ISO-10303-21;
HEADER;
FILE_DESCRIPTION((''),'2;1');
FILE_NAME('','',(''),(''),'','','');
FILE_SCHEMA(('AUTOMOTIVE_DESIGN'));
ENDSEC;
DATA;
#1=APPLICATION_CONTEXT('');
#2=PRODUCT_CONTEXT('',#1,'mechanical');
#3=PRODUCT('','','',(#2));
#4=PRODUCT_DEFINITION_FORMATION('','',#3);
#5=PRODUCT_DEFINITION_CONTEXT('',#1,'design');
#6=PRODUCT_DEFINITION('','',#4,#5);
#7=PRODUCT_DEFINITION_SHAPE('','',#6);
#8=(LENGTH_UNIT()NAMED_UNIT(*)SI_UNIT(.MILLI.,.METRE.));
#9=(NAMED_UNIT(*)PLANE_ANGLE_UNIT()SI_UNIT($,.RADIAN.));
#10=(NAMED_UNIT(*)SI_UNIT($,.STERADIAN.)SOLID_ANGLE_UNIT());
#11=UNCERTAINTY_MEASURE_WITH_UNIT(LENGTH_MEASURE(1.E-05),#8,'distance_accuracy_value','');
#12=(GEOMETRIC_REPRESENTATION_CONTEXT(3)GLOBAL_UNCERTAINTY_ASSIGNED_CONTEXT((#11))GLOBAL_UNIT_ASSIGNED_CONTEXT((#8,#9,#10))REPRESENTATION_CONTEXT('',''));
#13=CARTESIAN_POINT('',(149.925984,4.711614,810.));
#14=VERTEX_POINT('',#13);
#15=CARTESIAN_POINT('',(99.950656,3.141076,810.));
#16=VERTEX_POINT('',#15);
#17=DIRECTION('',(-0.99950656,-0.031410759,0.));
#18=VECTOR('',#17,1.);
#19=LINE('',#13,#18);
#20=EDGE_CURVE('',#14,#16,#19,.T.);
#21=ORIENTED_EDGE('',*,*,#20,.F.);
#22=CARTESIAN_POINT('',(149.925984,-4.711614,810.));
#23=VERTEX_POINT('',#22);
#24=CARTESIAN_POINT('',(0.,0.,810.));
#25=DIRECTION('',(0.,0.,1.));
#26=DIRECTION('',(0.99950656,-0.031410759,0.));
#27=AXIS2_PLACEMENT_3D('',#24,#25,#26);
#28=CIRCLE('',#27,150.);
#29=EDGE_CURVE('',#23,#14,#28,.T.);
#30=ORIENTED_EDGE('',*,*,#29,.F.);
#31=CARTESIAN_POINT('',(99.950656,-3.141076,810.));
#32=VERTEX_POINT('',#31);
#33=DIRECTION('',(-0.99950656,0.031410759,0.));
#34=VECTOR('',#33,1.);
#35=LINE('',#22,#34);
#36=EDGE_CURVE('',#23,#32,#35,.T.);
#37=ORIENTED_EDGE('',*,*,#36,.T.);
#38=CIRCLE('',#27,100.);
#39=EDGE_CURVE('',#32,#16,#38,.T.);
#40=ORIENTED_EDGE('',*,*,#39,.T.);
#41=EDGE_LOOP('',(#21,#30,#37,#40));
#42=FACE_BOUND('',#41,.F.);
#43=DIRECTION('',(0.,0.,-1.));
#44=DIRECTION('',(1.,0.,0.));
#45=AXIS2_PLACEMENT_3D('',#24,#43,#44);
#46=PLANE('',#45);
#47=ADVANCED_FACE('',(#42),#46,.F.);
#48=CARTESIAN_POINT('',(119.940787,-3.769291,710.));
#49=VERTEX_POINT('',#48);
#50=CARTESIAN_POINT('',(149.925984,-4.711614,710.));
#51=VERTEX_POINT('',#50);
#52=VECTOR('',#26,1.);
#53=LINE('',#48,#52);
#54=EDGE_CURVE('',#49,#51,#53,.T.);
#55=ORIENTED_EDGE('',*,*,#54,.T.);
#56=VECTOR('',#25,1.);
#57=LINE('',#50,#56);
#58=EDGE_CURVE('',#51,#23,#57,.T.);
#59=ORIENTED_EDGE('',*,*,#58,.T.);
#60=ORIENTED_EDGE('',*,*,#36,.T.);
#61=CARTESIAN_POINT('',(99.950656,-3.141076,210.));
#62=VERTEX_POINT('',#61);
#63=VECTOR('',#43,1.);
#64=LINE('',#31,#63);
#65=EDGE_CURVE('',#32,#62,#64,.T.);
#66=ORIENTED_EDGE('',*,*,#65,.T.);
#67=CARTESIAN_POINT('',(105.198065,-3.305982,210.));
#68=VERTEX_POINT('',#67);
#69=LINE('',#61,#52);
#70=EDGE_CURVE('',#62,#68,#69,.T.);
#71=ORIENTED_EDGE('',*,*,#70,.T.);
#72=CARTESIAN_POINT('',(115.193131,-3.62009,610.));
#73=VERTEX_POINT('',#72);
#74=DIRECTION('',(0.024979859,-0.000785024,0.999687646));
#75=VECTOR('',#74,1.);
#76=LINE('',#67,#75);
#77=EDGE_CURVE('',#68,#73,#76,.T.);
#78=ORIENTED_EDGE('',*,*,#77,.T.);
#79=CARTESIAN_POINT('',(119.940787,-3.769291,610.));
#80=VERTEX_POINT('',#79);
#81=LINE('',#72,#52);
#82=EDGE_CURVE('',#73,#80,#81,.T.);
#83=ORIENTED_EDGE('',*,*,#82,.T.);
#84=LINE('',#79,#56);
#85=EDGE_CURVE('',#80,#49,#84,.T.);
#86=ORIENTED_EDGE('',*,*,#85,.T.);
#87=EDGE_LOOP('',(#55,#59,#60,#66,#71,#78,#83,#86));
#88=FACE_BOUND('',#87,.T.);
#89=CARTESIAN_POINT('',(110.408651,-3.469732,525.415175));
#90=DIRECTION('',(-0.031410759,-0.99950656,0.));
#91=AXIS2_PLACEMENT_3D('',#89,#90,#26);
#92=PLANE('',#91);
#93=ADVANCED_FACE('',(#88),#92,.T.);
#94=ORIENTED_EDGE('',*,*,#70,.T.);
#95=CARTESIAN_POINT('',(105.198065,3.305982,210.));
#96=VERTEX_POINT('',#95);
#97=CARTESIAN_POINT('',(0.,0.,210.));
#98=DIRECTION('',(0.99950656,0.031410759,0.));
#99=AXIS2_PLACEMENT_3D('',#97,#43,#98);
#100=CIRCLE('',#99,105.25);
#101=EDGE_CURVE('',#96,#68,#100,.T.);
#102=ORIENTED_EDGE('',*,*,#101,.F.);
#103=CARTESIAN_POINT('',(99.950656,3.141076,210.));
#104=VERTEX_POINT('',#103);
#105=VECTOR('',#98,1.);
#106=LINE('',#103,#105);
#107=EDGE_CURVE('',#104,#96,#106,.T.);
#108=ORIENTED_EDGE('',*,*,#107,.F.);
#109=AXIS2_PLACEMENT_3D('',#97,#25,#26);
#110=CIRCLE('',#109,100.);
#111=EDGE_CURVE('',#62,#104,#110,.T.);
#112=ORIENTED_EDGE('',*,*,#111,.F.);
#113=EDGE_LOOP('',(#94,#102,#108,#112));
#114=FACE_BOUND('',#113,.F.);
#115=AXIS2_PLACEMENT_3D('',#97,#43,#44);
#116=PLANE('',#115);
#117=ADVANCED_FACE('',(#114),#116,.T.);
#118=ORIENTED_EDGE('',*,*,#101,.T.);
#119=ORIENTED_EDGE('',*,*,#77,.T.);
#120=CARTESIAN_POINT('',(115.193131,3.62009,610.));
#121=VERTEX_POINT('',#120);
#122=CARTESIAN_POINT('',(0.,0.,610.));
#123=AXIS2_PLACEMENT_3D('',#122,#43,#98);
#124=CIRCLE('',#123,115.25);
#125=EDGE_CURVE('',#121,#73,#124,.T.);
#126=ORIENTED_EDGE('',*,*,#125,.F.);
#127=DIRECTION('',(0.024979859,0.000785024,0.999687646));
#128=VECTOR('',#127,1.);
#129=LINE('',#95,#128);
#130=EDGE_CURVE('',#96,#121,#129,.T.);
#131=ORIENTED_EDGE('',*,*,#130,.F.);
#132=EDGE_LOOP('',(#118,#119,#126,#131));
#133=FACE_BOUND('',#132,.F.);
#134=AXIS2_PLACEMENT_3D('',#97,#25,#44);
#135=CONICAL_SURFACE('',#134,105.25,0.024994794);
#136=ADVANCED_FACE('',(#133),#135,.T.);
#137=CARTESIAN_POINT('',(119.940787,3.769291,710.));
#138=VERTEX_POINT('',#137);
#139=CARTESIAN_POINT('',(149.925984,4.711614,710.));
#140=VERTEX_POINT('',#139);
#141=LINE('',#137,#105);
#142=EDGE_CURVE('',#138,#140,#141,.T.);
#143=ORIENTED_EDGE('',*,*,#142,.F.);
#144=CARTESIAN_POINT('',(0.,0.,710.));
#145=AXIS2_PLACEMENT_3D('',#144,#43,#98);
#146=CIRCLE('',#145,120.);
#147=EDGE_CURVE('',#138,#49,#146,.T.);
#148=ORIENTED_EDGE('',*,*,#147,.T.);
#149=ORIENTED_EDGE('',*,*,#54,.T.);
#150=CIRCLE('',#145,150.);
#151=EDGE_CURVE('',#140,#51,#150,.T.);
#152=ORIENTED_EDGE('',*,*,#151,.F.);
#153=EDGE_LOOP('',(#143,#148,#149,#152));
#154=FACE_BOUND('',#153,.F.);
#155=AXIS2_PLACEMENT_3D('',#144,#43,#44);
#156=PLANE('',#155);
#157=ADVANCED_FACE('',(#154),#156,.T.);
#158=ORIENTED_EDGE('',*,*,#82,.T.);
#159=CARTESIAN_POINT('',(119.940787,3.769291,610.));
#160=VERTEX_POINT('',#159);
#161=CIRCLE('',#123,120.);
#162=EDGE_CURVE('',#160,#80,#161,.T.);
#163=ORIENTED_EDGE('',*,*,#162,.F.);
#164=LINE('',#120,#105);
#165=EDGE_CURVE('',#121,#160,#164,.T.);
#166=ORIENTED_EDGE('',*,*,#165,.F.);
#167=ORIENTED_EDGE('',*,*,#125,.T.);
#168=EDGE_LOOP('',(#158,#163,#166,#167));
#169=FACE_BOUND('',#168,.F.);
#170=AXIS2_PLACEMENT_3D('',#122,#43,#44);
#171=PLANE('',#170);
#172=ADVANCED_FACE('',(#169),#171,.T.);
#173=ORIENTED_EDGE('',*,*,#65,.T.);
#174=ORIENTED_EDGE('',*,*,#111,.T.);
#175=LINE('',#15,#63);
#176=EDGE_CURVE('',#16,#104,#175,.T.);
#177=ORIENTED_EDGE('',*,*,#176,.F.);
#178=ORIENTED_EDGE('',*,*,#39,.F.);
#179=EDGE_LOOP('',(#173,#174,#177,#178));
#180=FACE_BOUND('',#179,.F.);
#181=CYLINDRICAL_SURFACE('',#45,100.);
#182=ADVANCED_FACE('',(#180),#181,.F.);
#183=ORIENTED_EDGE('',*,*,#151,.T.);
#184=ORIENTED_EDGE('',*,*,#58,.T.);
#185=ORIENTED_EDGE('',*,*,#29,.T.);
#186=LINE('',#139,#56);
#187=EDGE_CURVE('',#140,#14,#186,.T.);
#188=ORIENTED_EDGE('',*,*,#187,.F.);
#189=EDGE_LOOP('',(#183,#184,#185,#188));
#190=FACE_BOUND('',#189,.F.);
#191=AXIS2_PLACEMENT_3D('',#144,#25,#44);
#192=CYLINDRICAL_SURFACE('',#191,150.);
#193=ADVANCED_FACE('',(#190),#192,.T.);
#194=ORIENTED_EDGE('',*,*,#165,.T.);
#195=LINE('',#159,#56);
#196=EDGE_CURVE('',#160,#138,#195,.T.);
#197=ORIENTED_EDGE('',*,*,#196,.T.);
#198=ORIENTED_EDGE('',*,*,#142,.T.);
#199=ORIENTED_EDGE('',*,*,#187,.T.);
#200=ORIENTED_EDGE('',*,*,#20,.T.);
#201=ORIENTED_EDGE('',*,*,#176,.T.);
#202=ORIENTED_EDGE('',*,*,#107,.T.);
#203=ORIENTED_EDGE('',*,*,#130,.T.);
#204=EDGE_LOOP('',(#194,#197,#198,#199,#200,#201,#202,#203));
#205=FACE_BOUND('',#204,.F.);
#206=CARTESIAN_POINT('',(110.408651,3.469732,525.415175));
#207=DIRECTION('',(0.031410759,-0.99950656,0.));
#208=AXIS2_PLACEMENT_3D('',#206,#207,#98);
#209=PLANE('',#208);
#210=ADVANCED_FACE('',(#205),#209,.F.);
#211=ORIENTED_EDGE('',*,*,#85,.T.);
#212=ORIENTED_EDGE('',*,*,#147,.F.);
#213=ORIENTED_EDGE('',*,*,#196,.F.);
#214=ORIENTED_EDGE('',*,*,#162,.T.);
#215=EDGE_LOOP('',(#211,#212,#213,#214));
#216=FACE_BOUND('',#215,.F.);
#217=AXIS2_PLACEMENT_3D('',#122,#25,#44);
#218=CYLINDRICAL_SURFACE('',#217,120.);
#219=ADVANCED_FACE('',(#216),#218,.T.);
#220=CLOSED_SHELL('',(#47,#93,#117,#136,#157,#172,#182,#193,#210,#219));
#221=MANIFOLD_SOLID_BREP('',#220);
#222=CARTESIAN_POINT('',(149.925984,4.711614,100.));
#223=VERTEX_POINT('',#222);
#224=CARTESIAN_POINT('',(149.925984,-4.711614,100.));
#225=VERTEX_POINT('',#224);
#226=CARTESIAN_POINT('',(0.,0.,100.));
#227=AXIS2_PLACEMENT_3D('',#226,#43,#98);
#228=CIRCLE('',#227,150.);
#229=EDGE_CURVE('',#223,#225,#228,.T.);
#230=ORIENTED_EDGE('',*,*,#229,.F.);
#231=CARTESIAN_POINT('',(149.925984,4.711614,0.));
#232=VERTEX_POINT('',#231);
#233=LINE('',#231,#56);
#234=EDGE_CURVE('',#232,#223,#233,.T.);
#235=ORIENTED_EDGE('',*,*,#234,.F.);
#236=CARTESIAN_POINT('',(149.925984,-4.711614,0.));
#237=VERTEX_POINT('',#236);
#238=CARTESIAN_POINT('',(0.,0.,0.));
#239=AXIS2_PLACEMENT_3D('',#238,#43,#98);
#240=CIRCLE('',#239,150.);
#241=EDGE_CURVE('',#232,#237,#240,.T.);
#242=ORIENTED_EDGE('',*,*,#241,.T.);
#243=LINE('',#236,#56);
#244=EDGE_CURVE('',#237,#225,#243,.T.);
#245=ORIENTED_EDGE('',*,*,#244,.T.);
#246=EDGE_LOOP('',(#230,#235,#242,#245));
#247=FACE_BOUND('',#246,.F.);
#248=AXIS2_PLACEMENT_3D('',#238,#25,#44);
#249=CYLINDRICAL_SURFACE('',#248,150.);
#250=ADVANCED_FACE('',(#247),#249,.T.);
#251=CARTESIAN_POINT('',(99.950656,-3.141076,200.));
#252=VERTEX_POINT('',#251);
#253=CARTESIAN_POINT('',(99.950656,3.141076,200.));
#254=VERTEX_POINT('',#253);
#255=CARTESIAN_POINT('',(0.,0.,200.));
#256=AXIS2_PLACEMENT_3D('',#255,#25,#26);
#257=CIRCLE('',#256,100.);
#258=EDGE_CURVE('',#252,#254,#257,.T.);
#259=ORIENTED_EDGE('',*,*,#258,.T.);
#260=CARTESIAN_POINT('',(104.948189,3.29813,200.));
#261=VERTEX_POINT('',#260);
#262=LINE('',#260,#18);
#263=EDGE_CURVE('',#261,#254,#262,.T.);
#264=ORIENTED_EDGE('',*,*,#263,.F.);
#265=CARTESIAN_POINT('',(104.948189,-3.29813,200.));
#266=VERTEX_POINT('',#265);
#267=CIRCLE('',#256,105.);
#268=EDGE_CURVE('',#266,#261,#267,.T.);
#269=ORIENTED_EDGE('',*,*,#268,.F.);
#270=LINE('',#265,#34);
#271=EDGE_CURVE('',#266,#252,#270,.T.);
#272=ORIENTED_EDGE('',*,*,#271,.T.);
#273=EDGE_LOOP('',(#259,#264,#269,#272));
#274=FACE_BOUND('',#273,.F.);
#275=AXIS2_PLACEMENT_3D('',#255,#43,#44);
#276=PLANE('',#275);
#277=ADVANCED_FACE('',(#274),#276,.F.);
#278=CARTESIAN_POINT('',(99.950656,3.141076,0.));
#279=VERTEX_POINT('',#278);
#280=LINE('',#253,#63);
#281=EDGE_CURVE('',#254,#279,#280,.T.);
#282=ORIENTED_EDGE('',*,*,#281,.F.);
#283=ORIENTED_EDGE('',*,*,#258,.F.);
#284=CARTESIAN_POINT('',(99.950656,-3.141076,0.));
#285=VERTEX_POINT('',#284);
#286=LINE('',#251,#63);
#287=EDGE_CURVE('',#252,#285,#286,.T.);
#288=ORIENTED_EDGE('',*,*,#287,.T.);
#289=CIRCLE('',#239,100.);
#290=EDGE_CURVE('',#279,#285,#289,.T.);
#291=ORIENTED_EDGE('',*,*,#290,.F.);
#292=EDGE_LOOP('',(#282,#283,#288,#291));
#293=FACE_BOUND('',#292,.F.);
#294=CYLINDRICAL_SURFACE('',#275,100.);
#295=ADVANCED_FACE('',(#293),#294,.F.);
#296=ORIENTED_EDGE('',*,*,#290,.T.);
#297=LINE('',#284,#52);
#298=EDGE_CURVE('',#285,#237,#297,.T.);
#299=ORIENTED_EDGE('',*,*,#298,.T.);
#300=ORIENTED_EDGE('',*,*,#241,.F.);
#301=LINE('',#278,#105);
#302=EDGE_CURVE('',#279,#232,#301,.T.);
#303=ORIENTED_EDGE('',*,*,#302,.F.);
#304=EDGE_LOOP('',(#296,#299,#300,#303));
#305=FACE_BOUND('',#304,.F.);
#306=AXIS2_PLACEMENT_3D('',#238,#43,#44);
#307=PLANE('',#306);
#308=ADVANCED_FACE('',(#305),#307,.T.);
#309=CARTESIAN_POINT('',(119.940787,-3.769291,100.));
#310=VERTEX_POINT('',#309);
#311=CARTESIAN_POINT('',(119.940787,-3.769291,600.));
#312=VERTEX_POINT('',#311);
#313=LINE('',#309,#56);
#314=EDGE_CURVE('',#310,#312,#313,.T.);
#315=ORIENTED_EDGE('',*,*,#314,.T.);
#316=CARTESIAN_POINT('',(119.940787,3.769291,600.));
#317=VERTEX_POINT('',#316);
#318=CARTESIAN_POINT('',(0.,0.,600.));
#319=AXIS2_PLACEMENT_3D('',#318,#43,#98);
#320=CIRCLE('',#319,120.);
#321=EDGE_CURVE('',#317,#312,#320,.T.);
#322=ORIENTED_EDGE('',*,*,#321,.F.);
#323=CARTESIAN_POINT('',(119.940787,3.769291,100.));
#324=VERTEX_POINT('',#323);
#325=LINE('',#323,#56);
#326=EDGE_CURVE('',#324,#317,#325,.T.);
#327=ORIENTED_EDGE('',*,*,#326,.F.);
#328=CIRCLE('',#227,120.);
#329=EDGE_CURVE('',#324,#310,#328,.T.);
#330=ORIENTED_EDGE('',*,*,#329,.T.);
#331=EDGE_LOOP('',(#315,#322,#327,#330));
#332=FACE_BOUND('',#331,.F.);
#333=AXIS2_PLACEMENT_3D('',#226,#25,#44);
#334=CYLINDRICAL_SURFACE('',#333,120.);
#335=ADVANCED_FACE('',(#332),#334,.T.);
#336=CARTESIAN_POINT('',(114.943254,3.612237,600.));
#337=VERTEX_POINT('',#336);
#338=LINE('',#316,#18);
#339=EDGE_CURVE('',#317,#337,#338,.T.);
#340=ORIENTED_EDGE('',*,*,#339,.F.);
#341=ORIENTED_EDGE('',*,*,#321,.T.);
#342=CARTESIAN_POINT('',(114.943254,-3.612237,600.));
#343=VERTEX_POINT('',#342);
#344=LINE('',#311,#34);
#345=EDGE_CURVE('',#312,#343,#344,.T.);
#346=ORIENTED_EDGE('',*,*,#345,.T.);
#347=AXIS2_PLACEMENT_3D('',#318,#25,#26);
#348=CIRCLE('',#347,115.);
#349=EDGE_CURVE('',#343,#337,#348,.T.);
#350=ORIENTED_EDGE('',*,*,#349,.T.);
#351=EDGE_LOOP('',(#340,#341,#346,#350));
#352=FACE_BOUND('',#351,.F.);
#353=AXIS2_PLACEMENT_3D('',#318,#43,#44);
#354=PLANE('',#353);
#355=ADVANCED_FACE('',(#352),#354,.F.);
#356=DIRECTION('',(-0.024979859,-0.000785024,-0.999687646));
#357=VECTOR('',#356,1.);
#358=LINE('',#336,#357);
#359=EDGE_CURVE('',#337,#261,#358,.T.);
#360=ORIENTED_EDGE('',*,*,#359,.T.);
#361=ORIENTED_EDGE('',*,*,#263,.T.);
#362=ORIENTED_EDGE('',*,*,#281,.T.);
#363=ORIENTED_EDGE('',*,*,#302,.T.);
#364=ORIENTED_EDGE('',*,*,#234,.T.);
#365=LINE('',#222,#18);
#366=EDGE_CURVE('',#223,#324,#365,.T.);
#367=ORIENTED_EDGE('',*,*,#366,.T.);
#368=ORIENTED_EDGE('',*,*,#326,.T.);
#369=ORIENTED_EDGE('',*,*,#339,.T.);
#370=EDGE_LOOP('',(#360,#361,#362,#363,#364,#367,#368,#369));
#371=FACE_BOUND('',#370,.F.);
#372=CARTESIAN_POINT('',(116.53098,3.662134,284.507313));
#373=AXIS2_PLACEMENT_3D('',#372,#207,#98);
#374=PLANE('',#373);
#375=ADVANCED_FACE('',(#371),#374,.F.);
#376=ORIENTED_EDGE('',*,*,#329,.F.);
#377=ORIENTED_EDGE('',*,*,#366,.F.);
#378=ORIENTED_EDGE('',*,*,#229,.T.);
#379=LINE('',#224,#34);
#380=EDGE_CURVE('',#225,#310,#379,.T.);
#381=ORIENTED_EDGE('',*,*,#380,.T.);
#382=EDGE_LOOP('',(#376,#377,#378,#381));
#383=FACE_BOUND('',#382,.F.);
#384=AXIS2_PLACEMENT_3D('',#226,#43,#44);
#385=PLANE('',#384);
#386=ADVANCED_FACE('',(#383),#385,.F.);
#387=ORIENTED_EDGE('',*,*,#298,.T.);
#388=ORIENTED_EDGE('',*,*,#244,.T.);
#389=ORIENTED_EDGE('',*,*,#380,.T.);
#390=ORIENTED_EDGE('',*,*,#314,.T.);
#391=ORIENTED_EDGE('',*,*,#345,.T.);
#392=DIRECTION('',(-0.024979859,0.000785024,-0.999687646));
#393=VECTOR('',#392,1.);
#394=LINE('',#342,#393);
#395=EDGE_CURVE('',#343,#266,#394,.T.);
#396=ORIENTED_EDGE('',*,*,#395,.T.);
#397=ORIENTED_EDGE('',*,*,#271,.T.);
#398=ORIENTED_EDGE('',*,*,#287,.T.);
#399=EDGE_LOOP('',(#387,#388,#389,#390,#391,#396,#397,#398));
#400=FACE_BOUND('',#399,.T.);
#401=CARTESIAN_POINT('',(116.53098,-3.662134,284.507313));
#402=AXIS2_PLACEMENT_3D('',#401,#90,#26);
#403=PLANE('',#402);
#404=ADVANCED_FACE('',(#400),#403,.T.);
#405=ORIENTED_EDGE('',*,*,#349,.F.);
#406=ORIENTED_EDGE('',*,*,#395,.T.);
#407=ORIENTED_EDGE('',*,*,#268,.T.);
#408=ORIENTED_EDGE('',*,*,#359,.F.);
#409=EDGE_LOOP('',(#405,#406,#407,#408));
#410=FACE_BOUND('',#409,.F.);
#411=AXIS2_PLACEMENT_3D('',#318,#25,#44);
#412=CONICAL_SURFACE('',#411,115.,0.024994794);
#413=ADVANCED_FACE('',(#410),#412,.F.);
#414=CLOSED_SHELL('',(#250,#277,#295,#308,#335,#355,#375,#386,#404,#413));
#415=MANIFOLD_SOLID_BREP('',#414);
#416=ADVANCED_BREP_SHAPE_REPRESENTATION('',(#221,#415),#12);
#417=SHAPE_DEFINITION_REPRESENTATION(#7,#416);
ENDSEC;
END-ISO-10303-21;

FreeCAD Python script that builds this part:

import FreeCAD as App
import Part
import Sketcher
from FreeCAD import Vector


def add_polygon(sketch, points):
    """Adds a closed chain of lines whose ends are joined by coincident constraints."""
    first, n = sketch.GeometryCount, len(points)
    for a, b in zip(points, points[1:] + points[:1]):
        sketch.addGeometry(Part.LineSegment(App.Vector(*a, 0), App.Vector(*b, 0)), False)
    for i in range(n):
        sketch.addConstraint(Sketcher.Constraint("Coincident", first + i, 2, first + (i + 1) % n, 1))

doc = App.newDocument("Part")
body = doc.addObject("PartDesign::Body", "Body")

# Sketch on XZ plane
sketch1 = body.newObject("Sketcher::SketchObject", "Sketch")
sketch1.AttachmentSupport = (doc.getObject("XZ_Plane"), [""])
sketch1.MapMode = "FlatFace"
add_polygon(sketch1, [(100, 210), (105.2, 210), (115.2, 610), (120, 610), (120, 710), (150, 710), (150, 810), (100, 810)])  # lines 0-7
sketch1.addConstraint([
    Sketcher.Constraint("Horizontal", 0),
    Sketcher.Constraint("Horizontal", 2),
    Sketcher.Constraint("Vertical", 3),
    Sketcher.Constraint("Horizontal", 4),
    Sketcher.Constraint("Vertical", 5),
    Sketcher.Constraint("Horizontal", 6),
    Sketcher.Constraint("Vertical", 7),
    Sketcher.Constraint("Equal", 3, 5),
    Sketcher.Constraint("DistanceX", 4, 1, 4, 2, 30.0),
    Sketcher.Constraint("DistanceX", 6, 2, 6, 1, 50.0),
    Sketcher.Constraint("DistanceY", 3, 1, 3, 2, 100.0),
    Sketcher.Constraint("DistanceY", 7, 2, 7, 1, 600.0),
    Sketcher.Constraint("DistanceY", -1, 1, 0, 2, 210.0),
    Sketcher.Constraint("DistanceX", -1, 1, 2, 2, 120.0),
    Sketcher.Constraint("DistanceX", 0, 2, 1, 2, 10.0),
    Sketcher.Constraint("DistanceX", 0, 1, 0, 2, 5.25),
])
revolution = body.newObject("PartDesign::Revolution", "Revolution")
revolution.Profile = sketch1
revolution.ReferenceAxis = (sketch1, ["V_Axis"])
revolution.Angle = 1.8

# Sketch on XZ plane
sketch2 = body.newObject("Sketcher::SketchObject", "Sketch001")
sketch2.AttachmentSupport = (doc.getObject("XZ_Plane"), [""])
sketch2.MapMode = "FlatFace"
add_polygon(sketch2, [(100, 210), (105.2, 210), (115.2, 610), (120, 610), (120, 710), (150, 710), (150, 810), (100, 810)])  # lines 0-7
sketch2.addConstraint([
    Sketcher.Constraint("Horizontal", 0),
    Sketcher.Constraint("Horizontal", 2),
    Sketcher.Constraint("Vertical", 3),
    Sketcher.Constraint("Horizontal", 4),
    Sketcher.Constraint("Vertical", 5),
    Sketcher.Constraint("Horizontal", 6),
    Sketcher.Constraint("Vertical", 7),
    Sketcher.Constraint("Equal", 3, 5),
    Sketcher.Constraint("DistanceX", 4, 1, 4, 2, 30.0),
    Sketcher.Constraint("DistanceX", 6, 2, 6, 1, 50.0),
    Sketcher.Constraint("DistanceY", 3, 1, 3, 2, 100.0),
    Sketcher.Constraint("DistanceY", 7, 2, 7, 1, 600.0),
    Sketcher.Constraint("DistanceY", -1, 1, 0, 2, 210.0),
    Sketcher.Constraint("DistanceX", -1, 1, 2, 2, 120.0),
    Sketcher.Constraint("DistanceX", 0, 2, 1, 2, 10.0),
    Sketcher.Constraint("DistanceX", 0, 1, 0, 2, 5.25),
])
revolution2 = body.newObject("PartDesign::Revolution", "Revolution001")
revolution2.Profile = sketch2
revolution2.ReferenceAxis = (sketch2, ["V_Axis"])
revolution2.Angle = 1.8
revolution2.Reversed = True
body2 = doc.addObject("PartDesign::Body", "Body001")

# Sketch on XZ plane
sketch3 = body2.newObject("Sketcher::SketchObject", "Sketch002")
sketch3.AttachmentSupport = (doc.getObject("XZ_Plane001"), [""])
sketch3.MapMode = "FlatFace"
add_polygon(sketch3, [(100, 200), (100, 0), (150, 0), (150, 100), (120, 100), (120, 600), (115, 600), (105, 200)])  # lines 0-7
sketch3.addConstraint([
    Sketcher.Constraint("Vertical", 0),
    Sketcher.Constraint("Horizontal", 1),
    Sketcher.Constraint("Vertical", 2),
    Sketcher.Constraint("Horizontal", 3),
    Sketcher.Constraint("Vertical", 4),
    Sketcher.Constraint("Horizontal", 5),
    Sketcher.Constraint("Horizontal", 7),
    Sketcher.Constraint("PointOnObject", 0, 2, -1),
    Sketcher.Constraint("Equal", 5, 7),
    Sketcher.Constraint("DistanceX", 1, 1, 1, 2, 50.0),
    Sketcher.Constraint("DistanceX", 3, 2, 3, 1, 30.0),
    Sketcher.Constraint("DistanceX", 5, 2, 5, 1, 5.0),
    Sketcher.Constraint("DistanceY", 0, 2, 0, 1, 200.0),
    Sketcher.Constraint("DistanceY", 2, 1, 2, 2, 100.0),
    Sketcher.Constraint("DistanceY", 4, 1, 4, 2, 500.0),
    Sketcher.Constraint("DistanceX", -1, 1, 0, 2, 100.0),
])
revolution3 = body2.newObject("PartDesign::Revolution", "Revolution002")
revolution3.Profile = sketch3
revolution3.ReferenceAxis = (sketch3, ["V_Axis"])
revolution3.Angle = 1.8

# Sketch on XZ plane
sketch4 = body2.newObject("Sketcher::SketchObject", "Sketch003")
sketch4.AttachmentSupport = (doc.getObject("XZ_Plane001"), [""])
sketch4.MapMode = "FlatFace"
add_polygon(sketch4, [(100, 200), (100, 0), (150, 0), (150, 100), (120, 100), (120, 600), (115, 600), (105, 200)])  # lines 0-7
sketch4.addConstraint([
    Sketcher.Constraint("Vertical", 0),
    Sketcher.Constraint("Horizontal", 1),
    Sketcher.Constraint("Vertical", 2),
    Sketcher.Constraint("Horizontal", 3),
    Sketcher.Constraint("Vertical", 4),
    Sketcher.Constraint("Horizontal", 5),
    Sketcher.Constraint("Horizontal", 7),
    Sketcher.Constraint("PointOnObject", 0, 2, -1),
    Sketcher.Constraint("Equal", 5, 7),
    Sketcher.Constraint("DistanceX", 1, 1, 1, 2, 50.0),
    Sketcher.Constraint("DistanceX", 3, 2, 3, 1, 30.0),
    Sketcher.Constraint("DistanceX", 5, 2, 5, 1, 5.0),
    Sketcher.Constraint("DistanceY", 0, 2, 0, 1, 200.0),
    Sketcher.Constraint("DistanceY", 2, 1, 2, 2, 100.0),
    Sketcher.Constraint("DistanceY", 4, 1, 4, 2, 500.0),
    Sketcher.Constraint("DistanceX", -1, 1, 0, 2, 100.0),
])
revolution4 = body2.newObject("PartDesign::Revolution", "Revolution003")
revolution4.Profile = sketch4
revolution4.ReferenceAxis = (sketch4, ["V_Axis"])
revolution4.Angle = 1.8
revolution4.Reversed = True

doc.recompute()
